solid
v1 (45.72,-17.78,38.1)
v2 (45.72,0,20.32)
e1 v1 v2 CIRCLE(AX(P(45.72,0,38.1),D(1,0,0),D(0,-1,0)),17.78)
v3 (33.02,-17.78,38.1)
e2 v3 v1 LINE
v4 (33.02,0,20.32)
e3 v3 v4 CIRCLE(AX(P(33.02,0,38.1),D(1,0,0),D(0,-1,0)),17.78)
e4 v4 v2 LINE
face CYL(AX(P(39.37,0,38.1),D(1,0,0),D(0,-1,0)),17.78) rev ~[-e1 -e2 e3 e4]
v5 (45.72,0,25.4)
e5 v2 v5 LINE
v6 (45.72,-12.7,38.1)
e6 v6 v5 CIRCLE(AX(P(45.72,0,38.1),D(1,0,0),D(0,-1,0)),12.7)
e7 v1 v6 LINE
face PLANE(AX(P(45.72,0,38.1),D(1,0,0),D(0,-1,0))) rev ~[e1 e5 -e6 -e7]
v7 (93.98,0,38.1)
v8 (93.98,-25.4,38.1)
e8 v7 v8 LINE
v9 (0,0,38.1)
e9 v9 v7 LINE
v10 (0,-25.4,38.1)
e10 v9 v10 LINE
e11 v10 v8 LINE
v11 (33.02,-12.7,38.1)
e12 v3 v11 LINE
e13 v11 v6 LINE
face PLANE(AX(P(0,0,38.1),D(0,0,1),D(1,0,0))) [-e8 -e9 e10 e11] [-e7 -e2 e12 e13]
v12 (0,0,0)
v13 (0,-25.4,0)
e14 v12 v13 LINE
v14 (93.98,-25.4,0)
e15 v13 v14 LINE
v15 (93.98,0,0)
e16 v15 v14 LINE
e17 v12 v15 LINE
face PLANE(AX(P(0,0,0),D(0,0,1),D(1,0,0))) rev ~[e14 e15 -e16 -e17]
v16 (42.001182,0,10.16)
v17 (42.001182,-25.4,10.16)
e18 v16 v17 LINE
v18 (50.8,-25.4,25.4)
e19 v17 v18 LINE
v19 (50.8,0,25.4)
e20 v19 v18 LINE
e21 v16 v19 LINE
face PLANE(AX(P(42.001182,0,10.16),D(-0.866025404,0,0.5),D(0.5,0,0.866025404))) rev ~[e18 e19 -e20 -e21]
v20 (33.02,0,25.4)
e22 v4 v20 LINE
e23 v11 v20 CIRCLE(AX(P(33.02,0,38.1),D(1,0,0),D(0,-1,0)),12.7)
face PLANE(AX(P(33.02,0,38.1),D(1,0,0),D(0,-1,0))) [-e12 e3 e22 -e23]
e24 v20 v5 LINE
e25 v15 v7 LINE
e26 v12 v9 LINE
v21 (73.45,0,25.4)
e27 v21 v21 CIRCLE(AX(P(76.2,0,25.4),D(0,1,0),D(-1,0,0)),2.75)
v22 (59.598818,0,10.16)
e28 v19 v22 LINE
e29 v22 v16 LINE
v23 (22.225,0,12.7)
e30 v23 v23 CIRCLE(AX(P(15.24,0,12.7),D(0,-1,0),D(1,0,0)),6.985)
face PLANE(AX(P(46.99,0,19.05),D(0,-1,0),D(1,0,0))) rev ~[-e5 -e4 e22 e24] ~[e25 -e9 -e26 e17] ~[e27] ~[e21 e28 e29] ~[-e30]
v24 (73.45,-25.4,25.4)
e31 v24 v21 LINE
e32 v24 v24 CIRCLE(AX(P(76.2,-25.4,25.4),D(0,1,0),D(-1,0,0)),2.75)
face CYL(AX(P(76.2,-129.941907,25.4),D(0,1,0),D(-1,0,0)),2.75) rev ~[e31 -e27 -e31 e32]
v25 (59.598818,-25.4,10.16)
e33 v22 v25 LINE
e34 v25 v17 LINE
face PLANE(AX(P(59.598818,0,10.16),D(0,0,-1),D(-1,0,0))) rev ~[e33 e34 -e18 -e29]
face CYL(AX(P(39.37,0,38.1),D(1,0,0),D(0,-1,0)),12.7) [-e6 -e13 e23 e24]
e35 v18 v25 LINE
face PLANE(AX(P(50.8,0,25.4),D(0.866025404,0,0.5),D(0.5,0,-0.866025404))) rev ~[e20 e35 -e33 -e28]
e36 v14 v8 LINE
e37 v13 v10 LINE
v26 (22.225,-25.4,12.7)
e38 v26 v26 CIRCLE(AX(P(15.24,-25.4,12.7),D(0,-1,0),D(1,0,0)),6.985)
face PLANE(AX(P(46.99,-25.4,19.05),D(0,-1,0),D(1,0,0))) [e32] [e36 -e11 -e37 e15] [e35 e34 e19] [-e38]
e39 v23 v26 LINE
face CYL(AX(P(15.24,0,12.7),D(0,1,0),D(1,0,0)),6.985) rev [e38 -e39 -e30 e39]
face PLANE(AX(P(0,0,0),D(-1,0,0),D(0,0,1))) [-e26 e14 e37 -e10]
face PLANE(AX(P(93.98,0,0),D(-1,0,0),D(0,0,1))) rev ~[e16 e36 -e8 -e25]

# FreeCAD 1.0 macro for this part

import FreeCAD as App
import Part
import Sketcher
from FreeCAD import Vector
Q = App.Units.Quantity

doc = App.newDocument("Part")
body = doc.addObject("PartDesign::Body", "Body")

# Sketch on XZ plane
sketch1 = body.newObject("Sketcher::SketchObject", "Sketch")
sketch1.AttachmentSupport = (doc.getObject("XZ_Plane"), [""])
sketch1.MapMode = "FlatFace"
sketch1.addGeometry([
    Part.LineSegment(Vector(0, 38, 0), Vector(0, 0, 0)),  # 0
    Part.LineSegment(Vector(0, 0, 0), Vector(94, 0, 0)),  # 1
    Part.LineSegment(Vector(94, 0, 0), Vector(94, 38, 0)),  # 2
    Part.LineSegment(Vector(94, 38, 0), Vector(0, 38, 0)),  # 3
    Part.Circle(Vector(15, 13, 0), Vector(0, 0, 1), 7),  # 4
    Part.LineSegment(Vector(60, 10, 0), Vector(42, 10, 0)),  # 5
    Part.LineSegment(Vector(42, 10, 0), Vector(51, 25, 0)),  # 6
    Part.LineSegment(Vector(51, 25, 0), Vector(60, 10, 0)),  # 7
], False)
sketch1.addConstraint([
    Sketcher.Constraint("Coincident", 0, 2, 1, 1),
    Sketcher.Constraint("Coincident", 1, 2, 2, 1),
    Sketcher.Constraint("Coincident", 2, 2, 3, 1),
    Sketcher.Constraint("Coincident", 3, 2, 0, 1),
    Sketcher.Constraint("Coincident", 5, 2, 6, 1),
    Sketcher.Constraint("Coincident", 6, 2, 7, 1),
    Sketcher.Constraint("Coincident", 7, 2, 5, 1),
    Sketcher.Constraint("Vertical", 0),
    Sketcher.Constraint("Horizontal", 1),
    Sketcher.Constraint("Vertical", 2),
    Sketcher.Constraint("Horizontal", 3),
    Sketcher.Constraint("Horizontal", 5),
    Sketcher.Constraint("Coincident", 0, 2, -1, 1),
    Sketcher.Constraint("Equal", 6, 7),
    Sketcher.Constraint("Diameter", 4, Q("0.55 in")),
    Sketcher.Constraint("DistanceX", 1, 1, 1, 2, Q("3.7 in")),
    Sketcher.Constraint("DistanceY", 0, 2, 0, 1, Q("1.5 in")),
    Sketcher.Constraint("DistanceX", -1, 1, 6, 2, Q("2 in")),
    Sketcher.Constraint("DistanceY", -1, 1, 6, 2, Q("1 in")),
    Sketcher.Constraint("Angle", 6, Q("60 deg")),
    Sketcher.Constraint("DistanceY", 4, 3, 2, 2, Q("1 in")),
    Sketcher.Constraint("DistanceX", -1, 1, 4, 3, Q("0.6 in")),
    Sketcher.Constraint("DistanceY", -1, 1, 5, 2, Q("0.4 in")),
])
pad1 = body.newObject("PartDesign::Pad", "Pad")
pad1.Profile = sketch1
pad1.Length = Q("1 in")

# Sketch on XZ plane
sketch2 = body.newObject("Sketcher::SketchObject", "Sketch001")
sketch2.AttachmentSupport = (doc.getObject("XZ_Plane"), [""])
sketch2.MapMode = "FlatFace"
sketch2.AttachmentOffset = App.Placement(Vector(0, 0, 1 * 25.4), App.Rotation())
sketch2.addGeometry(Part.Circle(Vector(76.2, 25.4, 0), Vector(0, 0, 1), 2.8), False)
sketch2.addConstraint([
    Sketcher.Constraint("DistanceX", -1, 1, 0, 3, Q("3 in")),
    Sketcher.Constraint("DistanceY", -1, 1, 0, 3, Q("1 in")),
    Sketcher.Constraint("Diameter", 0, Q("5.5 mm")),
])
doc.recompute()
hole = body.newObject("PartDesign::Hole", "Hole")
hole.Profile = sketch2
hole.ThreadType = "None"
hole.Diameter = 5.5
hole.DepthType = "ThroughAll"

# Sketch on XY plane
sketch3 = body.newObject("Sketcher::SketchObject", "Sketch002")
sketch3.AttachmentSupport = (doc.getObject("XY_Plane"), [""])
sketch3.MapMode = "FlatFace"
sketch3.AttachmentOffset = App.Placement(Vector(0, 0, 1.5 * 25.4), App.Rotation())
sketch3.addGeometry([
    Part.LineSegment(Vector(33, -13, 0), Vector(33, -18, 0)),
    Part.LineSegment(Vector(33, -18, 0), Vector(46, -18, 0)),
    Part.LineSegment(Vector(46, -18, 0), Vector(46, -13, 0)),
    Part.LineSegment(Vector(46, -13, 0), Vector(33, -13, 0)),
], False)
sketch3.addConstraint([
    Sketcher.Constraint("Coincident", 0, 2, 1, 1),
    Sketcher.Constraint("Coincident", 1, 2, 2, 1),
    Sketcher.Constraint("Coincident", 2, 2, 3, 1),
    Sketcher.Constraint("Coincident", 3, 2, 0, 1),
    Sketcher.Constraint("Vertical", 0),
    Sketcher.Constraint("Horizontal", 1),
    Sketcher.Constraint("Vertical", 2),
    Sketcher.Constraint("Horizontal", 3),
    Sketcher.Constraint("DistanceX", 1, 1, 1, 2, Q("0.5 in")),
    Sketcher.Constraint("DistanceY", 0, 2, 0, 1, Q("0.2 in")),
    Sketcher.Constraint("DistanceX", -1, 1, 0, 2, Q("1.3 in")),
    Sketcher.Constraint("DistanceY", 0, 2, -1, 1, Q("0.7 in")),
])
groove = body.newObject("PartDesign::Groove", "Groove")
groove.Profile = sketch3
groove.ReferenceAxis = (sketch3, ["H_Axis"])
groove.Angle = 360

doc.recompute()
